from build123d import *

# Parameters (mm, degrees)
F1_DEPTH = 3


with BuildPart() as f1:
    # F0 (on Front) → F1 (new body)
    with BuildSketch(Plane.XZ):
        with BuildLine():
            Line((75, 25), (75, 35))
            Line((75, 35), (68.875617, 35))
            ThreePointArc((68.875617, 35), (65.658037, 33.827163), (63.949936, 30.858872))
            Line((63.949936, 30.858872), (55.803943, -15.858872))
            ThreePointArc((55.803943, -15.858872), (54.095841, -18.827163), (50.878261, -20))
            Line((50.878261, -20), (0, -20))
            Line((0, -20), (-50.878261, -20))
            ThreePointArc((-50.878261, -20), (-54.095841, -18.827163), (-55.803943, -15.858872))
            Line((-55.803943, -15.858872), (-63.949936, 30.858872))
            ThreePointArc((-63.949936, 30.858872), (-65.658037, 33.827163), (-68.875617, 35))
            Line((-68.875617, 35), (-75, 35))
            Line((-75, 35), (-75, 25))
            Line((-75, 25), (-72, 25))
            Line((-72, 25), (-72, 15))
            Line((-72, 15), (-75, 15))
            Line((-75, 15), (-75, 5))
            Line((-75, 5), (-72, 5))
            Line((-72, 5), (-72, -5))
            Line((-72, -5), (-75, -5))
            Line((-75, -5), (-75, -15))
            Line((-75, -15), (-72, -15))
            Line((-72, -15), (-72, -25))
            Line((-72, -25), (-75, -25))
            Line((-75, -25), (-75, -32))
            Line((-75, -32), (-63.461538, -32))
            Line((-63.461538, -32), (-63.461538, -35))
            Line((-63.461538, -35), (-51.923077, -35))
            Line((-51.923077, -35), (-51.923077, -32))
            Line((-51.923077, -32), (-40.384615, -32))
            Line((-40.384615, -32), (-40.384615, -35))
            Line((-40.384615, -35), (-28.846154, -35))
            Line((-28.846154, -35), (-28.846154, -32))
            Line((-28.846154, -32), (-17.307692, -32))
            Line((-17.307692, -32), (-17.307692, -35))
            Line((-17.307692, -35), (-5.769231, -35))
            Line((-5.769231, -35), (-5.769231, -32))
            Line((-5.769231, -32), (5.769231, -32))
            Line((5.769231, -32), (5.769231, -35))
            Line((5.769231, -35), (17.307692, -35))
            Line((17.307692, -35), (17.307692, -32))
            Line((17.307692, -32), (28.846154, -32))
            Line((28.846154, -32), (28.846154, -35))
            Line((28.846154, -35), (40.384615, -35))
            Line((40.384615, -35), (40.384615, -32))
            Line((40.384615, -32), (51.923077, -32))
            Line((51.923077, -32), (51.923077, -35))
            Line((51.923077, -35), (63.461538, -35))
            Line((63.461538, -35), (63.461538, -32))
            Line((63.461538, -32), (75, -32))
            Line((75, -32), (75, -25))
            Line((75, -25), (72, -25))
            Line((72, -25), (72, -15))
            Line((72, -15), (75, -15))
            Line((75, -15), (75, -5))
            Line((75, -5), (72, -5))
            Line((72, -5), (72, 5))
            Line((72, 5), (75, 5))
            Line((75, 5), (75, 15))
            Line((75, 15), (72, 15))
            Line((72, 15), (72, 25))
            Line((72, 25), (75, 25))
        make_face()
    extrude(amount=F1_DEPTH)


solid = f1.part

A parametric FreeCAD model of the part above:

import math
import FreeCAD as App
import Part
import Sketcher

V = App.Vector

doc = App.newDocument("Part")
params = doc.addObject("Spreadsheet::Sheet", "Params")
for row, (alias, value) in enumerate([
    ("sketch1_radius", "5 mm"),
    ("sketch1_radius2", "5.000002 mm"),
    ("sketch1_width", "3 mm"),
    ("sketch1_height", "10 mm"),
    ("sketch1_height2", "7 mm"),
    ("pad1_length", "3 mm"),
], start=1):
    params.set(f"A{row}", alias)
    params.set(f"B{row}", "=" + value)
    params.setAlias(f"B{row}", alias)

body = doc.addObject("PartDesign::Body", "Body")

sketch1 = body.newObject("Sketcher::SketchObject", "Sketch")
sketch1.AttachmentSupport = (doc.getObject("XZ_Plane"), [""])
sketch1.MapMode = "FlatFace"
sketch1.addGeometry([
    Part.LineSegment(V(75, 25, 0), V(75, 35, 0)),
    Part.LineSegment(V(75, 35, 0), V(68.9, 35, 0)),
    Part.ArcOfCircle(Part.Circle(V(68.9, 30, 0), V(0, 0, 1), 5), math.radians(90), math.radians(170)),
    Part.LineSegment(V(63.9, 30.9, 0), V(55.8, -15.9, 0)),
    Part.ArcOfCircle(Part.Circle(V(50.9, -15, 0), V(0, 0, 1), 5), math.radians(-90), math.radians(-10)),
    Part.LineSegment(V(50.9, -20, 0), V(-50.9, -20, 0)),
    Part.ArcOfCircle(Part.Circle(V(-50.9, -15, 0), V(0, 0, 1), 5), math.radians(-170), math.radians(-90)),
    Part.LineSegment(V(-55.8, -15.9, 0), V(-63.9, 30.9, 0)),
    Part.ArcOfCircle(Part.Circle(V(-68.9, 30, 0), V(0, 0, 1), 5), math.radians(10), math.radians(90)),
    Part.LineSegment(V(-68.9, 35, 0), V(-75, 35, 0)),
    Part.LineSegment(V(-75, 35, 0), V(-75, 25, 0)),
    Part.LineSegment(V(-75, 25, 0), V(-72, 25, 0)),
    Part.LineSegment(V(-72, 25, 0), V(-72, 15, 0)),
    Part.LineSegment(V(-72, 15, 0), V(-75, 15, 0)),
    Part.LineSegment(V(-75, 15, 0), V(-75, 5, 0)),
    Part.LineSegment(V(-75, 5, 0), V(-72, 5, 0)),
    Part.LineSegment(V(-72, 5, 0), V(-72, -5, 0)),
    Part.LineSegment(V(-72, -5, 0), V(-75, -5, 0)),
    Part.LineSegment(V(-75, -5, 0), V(-75, -15, 0)),
    Part.LineSegment(V(-75, -15, 0), V(-72, -15, 0)),
    Part.LineSegment(V(-72, -15, 0), V(-72, -25, 0)),
    Part.LineSegment(V(-72, -25, 0), V(-75, -25, 0)),
    Part.LineSegment(V(-75, -25, 0), V(-75, -32, 0)),
    Part.LineSegment(V(-75, -32, 0), V(-63.5, -32, 0)),
    Part.LineSegment(V(-63.5, -32, 0), V(-63.5, -35, 0)),
    Part.LineSegment(V(-63.5, -35, 0), V(-51.9, -35, 0)),
    Part.LineSegment(V(-51.9, -35, 0), V(-51.9, -32, 0)),
    Part.LineSegment(V(-51.9, -32, 0), V(-40.4, -32, 0)),
    Part.LineSegment(V(-40.4, -32, 0), V(-40.4, -35, 0)),
    Part.LineSegment(V(-40.4, -35, 0), V(-28.8, -35, 0)),
    Part.LineSegment(V(-28.8, -35, 0), V(-28.8, -32, 0)),
    Part.LineSegment(V(-28.8, -32, 0), V(-17.3, -32, 0)),
    Part.LineSegment(V(-17.3, -32, 0), V(-17.3, -35, 0)),
    Part.LineSegment(V(-17.3, -35, 0), V(-5.8, -35, 0)),
    Part.LineSegment(V(-5.8, -35, 0), V(-5.8, -32, 0)),
    Part.LineSegment(V(-5.8, -32, 0), V(5.8, -32, 0)),
    Part.LineSegment(V(5.8, -32, 0), V(5.8, -35, 0)),
    Part.LineSegment(V(5.8, -35, 0), V(17.3, -35, 0)),
    Part.LineSegment(V(17.3, -35, 0), V(17.3, -32, 0)),
    Part.LineSegment(V(17.3, -32, 0), V(28.8, -32, 0)),
    Part.LineSegment(V(28.8, -32, 0), V(28.8, -35, 0)),
    Part.LineSegment(V(28.8, -35, 0), V(40.4, -35, 0)),
    Part.LineSegment(V(40.4, -35, 0), V(40.4, -32, 0)),
    Part.LineSegment(V(40.4, -32, 0), V(51.9, -32, 0)),
    Part.LineSegment(V(51.9, -32, 0), V(51.9, -35, 0)),
    Part.LineSegment(V(51.9, -35, 0), V(63.5, -35, 0)),
    Part.LineSegment(V(63.5, -35, 0), V(63.5, -32, 0)),
    Part.LineSegment(V(63.5, -32, 0), V(75, -32, 0)),
    Part.LineSegment(V(75, -32, 0), V(75, -25, 0)),
    Part.LineSegment(V(75, -25, 0), V(72, -25, 0)),
    Part.LineSegment(V(72, -25, 0), V(72, -15, 0)),
    Part.LineSegment(V(72, -15, 0), V(75, -15, 0)),
    Part.LineSegment(V(75, -15, 0), V(75, -5, 0)),
    Part.LineSegment(V(75, -5, 0), V(72, -5, 0)),
    Part.LineSegment(V(72, -5, 0), V(72, 5, 0)),
    Part.LineSegment(V(72, 5, 0), V(75, 5, 0)),
    Part.LineSegment(V(75, 5, 0), V(75, 15, 0)),
    Part.LineSegment(V(75, 15, 0), V(72, 15, 0)),
    Part.LineSegment(V(72, 15, 0), V(72, 25, 0)),
    Part.LineSegment(V(72, 25, 0), V(75, 25, 0)),
], False)
sketch1.addConstraint([
    Sketcher.Constraint("Coincident", 0, 2, 1, 1),
    Sketcher.Constraint("Tangent", 1, 2, 2, 1),
    Sketcher.Constraint("Tangent", 2, 2, 3, 1),
    Sketcher.Constraint("Tangent", 3, 2, 4, 2),
    Sketcher.Constraint("Tangent", 4, 1, 5, 1),
    Sketcher.Constraint("Tangent", 5, 2, 6, 2),
    Sketcher.Constraint("Tangent", 6, 1, 7, 1),
    Sketcher.Constraint("Tangent", 7, 2, 8, 1),
    Sketcher.Constraint("Tangent", 8, 2, 9, 1),
    Sketcher.Constraint("Coincident", 9, 2, 10, 1),
    Sketcher.Constraint("Coincident", 10, 2, 11, 1),
    Sketcher.Constraint("Coincident", 11, 2, 12, 1),
    Sketcher.Constraint("Coincident", 12, 2, 13, 1),
    Sketcher.Constraint("Coincident", 13, 2, 14, 1),
    Sketcher.Constraint("Coincident", 14, 2, 15, 1),
    Sketcher.Constraint("Coincident", 15, 2, 16, 1),
    Sketcher.Constraint("Coincident", 16, 2, 17, 1),
    Sketcher.Constraint("Coincident", 17, 2, 18, 1),
    Sketcher.Constraint("Coincident", 18, 2, 19, 1),
    Sketcher.Constraint("Coincident", 19, 2, 20, 1),
    Sketcher.Constraint("Coincident", 20, 2, 21, 1),
    Sketcher.Constraint("Coincident", 21, 2, 22, 1),
    Sketcher.Constraint("Coincident", 22, 2, 23, 1),
    Sketcher.Constraint("Coincident", 23, 2, 24, 1),
    Sketcher.Constraint("Coincident", 24, 2, 25, 1),
    Sketcher.Constraint("Coincident", 25, 2, 26, 1),
    Sketcher.Constraint("Coincident", 26, 2, 27, 1),
    Sketcher.Constraint("Coincident", 27, 2, 28, 1),
    Sketcher.Constraint("Coincident", 28, 2, 29, 1),
    Sketcher.Constraint("Coincident", 29, 2, 30, 1),
    Sketcher.Constraint("Coincident", 30, 2, 31, 1),
    Sketcher.Constraint("Coincident", 31, 2, 32, 1),
    Sketcher.Constraint("Coincident", 32, 2, 33, 1),
    Sketcher.Constraint("Coincident", 33, 2, 34, 1),
    Sketcher.Constraint("Coincident", 34, 2, 35, 1),
    Sketcher.Constraint("Coincident", 35, 2, 36, 1),
    Sketcher.Constraint("Coincident", 36, 2, 37, 1),
    Sketcher.Constraint("Coincident", 37, 2, 38, 1),
    Sketcher.Constraint("Coincident", 38, 2, 39, 1),
    Sketcher.Constraint("Coincident", 39, 2, 40, 1),
    Sketcher.Constraint("Coincident", 40, 2, 41, 1),
    Sketcher.Constraint("Coincident", 41, 2, 42, 1),
    Sketcher.Constraint("Coincident", 42, 2, 43, 1),
    Sketcher.Constraint("Coincident", 43, 2, 44, 1),
    Sketcher.Constraint("Coincident", 44, 2, 45, 1),
    Sketcher.Constraint("Coincident", 45, 2, 46, 1),
    Sketcher.Constraint("Coincident", 46, 2, 47, 1),
    Sketcher.Constraint("Coincident", 47, 2, 48, 1),
    Sketcher.Constraint("Coincident", 48, 2, 49, 1),
    Sketcher.Constraint("Coincident", 49, 2, 50, 1),
    Sketcher.Constraint("Coincident", 50, 2, 51, 1),
    Sketcher.Constraint("Coincident", 51, 2, 52, 1),
    Sketcher.Constraint("Coincident", 52, 2, 53, 1),
    Sketcher.Constraint("Coincident", 53, 2, 54, 1),
    Sketcher.Constraint("Coincident", 54, 2, 55, 1),
    Sketcher.Constraint("Coincident", 55, 2, 56, 1),
    Sketcher.Constraint("Coincident", 56, 2, 57, 1),
    Sketcher.Constraint("Coincident", 57, 2, 58, 1),
    Sketcher.Constraint("Coincident", 58, 2, 59, 1),
    Sketcher.Constraint("Coincident", 59, 2, 0, 1),
    Sketcher.Constraint("Vertical", 0),
    Sketcher.Constraint("Horizontal", 1),
    Sketcher.Constraint("Horizontal", 5),
    Sketcher.Constraint("Horizontal", 9),
    Sketcher.Constraint("Vertical", 10),
    Sketcher.Constraint("Horizontal", 11),
    Sketcher.Constraint("Vertical", 12),
    Sketcher.Constraint("Horizontal", 13),
    Sketcher.Constraint("Vertical", 14),
    Sketcher.Constraint("Horizontal", 15),
    Sketcher.Constraint("Vertical", 16),
    Sketcher.Constraint("Horizontal", 17),
    Sketcher.Constraint("Vertical", 18),
    Sketcher.Constraint("Horizontal", 19),
    Sketcher.Constraint("Vertical", 20),
    Sketcher.Constraint("Horizontal", 21),
    Sketcher.Constraint("Vertical", 22),
    Sketcher.Constraint("Horizontal", 23),
    Sketcher.Constraint("Vertical", 24),
    Sketcher.Constraint("Horizontal", 25),
    Sketcher.Constraint("Vertical", 26),
    Sketcher.Constraint("Horizontal", 27),
    Sketcher.Constraint("Vertical", 28),
    Sketcher.Constraint("Horizontal", 29),
    Sketcher.Constraint("Vertical", 30),
    Sketcher.Constraint("Horizontal", 31),
    Sketcher.Constraint("Vertical", 32),
    Sketcher.Constraint("Horizontal", 33),
    Sketcher.Constraint("Vertical", 34),
    Sketcher.Constraint("Horizontal", 35),
    Sketcher.Constraint("Vertical", 36),
    Sketcher.Constraint("Horizontal", 37),
    Sketcher.Constraint("Vertical", 38),
    Sketcher.Constraint("Horizontal", 39),
    Sketcher.Constraint("Vertical", 40),
    Sketcher.Constraint("Horizontal", 41),
    Sketcher.Constraint("Vertical", 42),
    Sketcher.Constraint("Horizontal", 43),
    Sketcher.Constraint("Vertical", 44),
    Sketcher.Constraint("Horizontal", 45),
    Sketcher.Constraint("Vertical", 46),
    Sketcher.Constraint("Horizontal", 47),
    Sketcher.Constraint("Vertical", 48),
    Sketcher.Constraint("Horizontal", 49),
    Sketcher.Constraint("Vertical", 50),
    Sketcher.Constraint("Horizontal", 51),
    Sketcher.Constraint("Vertical", 52),
    Sketcher.Constraint("Horizontal", 53),
    Sketcher.Constraint("Vertical", 54),
    Sketcher.Constraint("Horizontal", 55),
    Sketcher.Constraint("Vertical", 56),
    Sketcher.Constraint("Horizontal", 57),
    Sketcher.Constraint("Vertical", 58),
    Sketcher.Constraint("Horizontal", 59),
    Sketcher.Constraint("Equal", 4, 6),
    Sketcher.Constraint("Equal", 2, 8),
    Sketcher.Constraint("Symmetric", 10, 2, 48, 2, -1, 1),
    Sketcher.Constraint("Symmetric", 12, 2, 50, 2, -1, 1),
    Sketcher.Constraint("Symmetric", 14, 2, 52, 2, -1, 1),
    Sketcher.Constraint("Symmetric", 16, 2, 54, 2, -1, 1),
    Sketcher.Constraint("Symmetric", 18, 2, 56, 2, -1, 1),
    Sketcher.Constraint("Symmetric", 20, 2, 58, 2, -1, 1),
    Sketcher.Constraint("Symmetric", 2, 3, 8, 3, -2),
    Sketcher.Constraint("Symmetric", 33, 2, 36, 2, -2),
    Sketcher.Constraint("Symmetric", 31, 2, 38, 2, -2),
    Sketcher.Constraint("Symmetric", 29, 2, 40, 2, -2),
    Sketcher.Constraint("Symmetric", 27, 2, 42, 2, -2),
    Sketcher.Constraint("Symmetric", 25, 2, 44, 2, -2),
    Sketcher.Constraint("Symmetric", 23, 2, 46, 2, -2),
    Sketcher.Constraint("Symmetric", 21, 2, 48, 2, -2),
    Sketcher.Constraint("Symmetric", 19, 2, 50, 2, -2),
    Sketcher.Constraint("Symmetric", 17, 2, 52, 2, -2),
    Sketcher.Constraint("Horizontal", 3, 2, 6, 1),
    Sketcher.Constraint("Horizontal", 6, 3, 18, 2),
    Sketcher.Constraint("Horizontal", 23, 2, 26, 2),
    Sketcher.Constraint("Horizontal", 25, 2, 28, 2),
    Sketcher.Constraint("Horizontal", 27, 2, 30, 2),
    Sketcher.Constraint("Horizontal", 29, 2, 32, 2),
    Sketcher.Constraint("Horizontal", 31, 2, 34, 2),
    Sketcher.Constraint("Vertical", 10, 2, 13, 2),
    Sketcher.Constraint("Vertical", 12, 2, 15, 2),
    Sketcher.Constraint("Vertical", 0, 2, 47, 2),
    Sketcher.Constraint("Equal", 23, 25),
    Sketcher.Constraint("Equal", 25, 27),
    Sketcher.Constraint("Equal", 27, 29),
    Sketcher.Constraint("Equal", 29, 31),
    Sketcher.Constraint("Equal", 31, 33),
    Sketcher.Constraint("Equal", 33, 35),
    Sketcher.Constraint("Equal", 10, 12),
    Sketcher.Constraint("Equal", 12, 14),
    Sketcher.Constraint("Equal", 14, 16),
    Sketcher.Constraint("Equal", 59, 24),
    Sketcher.Constraint("Radius", 2, 5.0),
    Sketcher.Constraint("Radius", 4, 5.000002),
    Sketcher.Constraint("DistanceX", 11, 1, 11, 2, 3.0),
    Sketcher.Constraint("DistanceY", 0, 1, 0, 2, 10.0),
    Sketcher.Constraint("DistanceY", 22, 2, 22, 1, 7.0),
    Sketcher.Constraint("DistanceX", -1, 1, 0, 2, 75.0),
    Sketcher.Constraint("Distance", 3, 47.422619),
    Sketcher.Constraint("DistanceX", 1, 2, 1, 1, 6.124383),
])
sketch1.setExpression("Constraints[152]", "Params.sketch1_radius")
sketch1.setExpression("Constraints[153]", "Params.sketch1_radius2")
sketch1.setExpression("Constraints[154]", "Params.sketch1_width")
sketch1.setExpression("Constraints[155]", "Params.sketch1_height")
sketch1.setExpression("Constraints[156]", "Params.sketch1_height2")
pad1 = body.newObject("PartDesign::Pad", "Pad")
pad1.Profile = sketch1
pad1.setExpression("Length", "Params.pad1_length")

doc.recompute()
